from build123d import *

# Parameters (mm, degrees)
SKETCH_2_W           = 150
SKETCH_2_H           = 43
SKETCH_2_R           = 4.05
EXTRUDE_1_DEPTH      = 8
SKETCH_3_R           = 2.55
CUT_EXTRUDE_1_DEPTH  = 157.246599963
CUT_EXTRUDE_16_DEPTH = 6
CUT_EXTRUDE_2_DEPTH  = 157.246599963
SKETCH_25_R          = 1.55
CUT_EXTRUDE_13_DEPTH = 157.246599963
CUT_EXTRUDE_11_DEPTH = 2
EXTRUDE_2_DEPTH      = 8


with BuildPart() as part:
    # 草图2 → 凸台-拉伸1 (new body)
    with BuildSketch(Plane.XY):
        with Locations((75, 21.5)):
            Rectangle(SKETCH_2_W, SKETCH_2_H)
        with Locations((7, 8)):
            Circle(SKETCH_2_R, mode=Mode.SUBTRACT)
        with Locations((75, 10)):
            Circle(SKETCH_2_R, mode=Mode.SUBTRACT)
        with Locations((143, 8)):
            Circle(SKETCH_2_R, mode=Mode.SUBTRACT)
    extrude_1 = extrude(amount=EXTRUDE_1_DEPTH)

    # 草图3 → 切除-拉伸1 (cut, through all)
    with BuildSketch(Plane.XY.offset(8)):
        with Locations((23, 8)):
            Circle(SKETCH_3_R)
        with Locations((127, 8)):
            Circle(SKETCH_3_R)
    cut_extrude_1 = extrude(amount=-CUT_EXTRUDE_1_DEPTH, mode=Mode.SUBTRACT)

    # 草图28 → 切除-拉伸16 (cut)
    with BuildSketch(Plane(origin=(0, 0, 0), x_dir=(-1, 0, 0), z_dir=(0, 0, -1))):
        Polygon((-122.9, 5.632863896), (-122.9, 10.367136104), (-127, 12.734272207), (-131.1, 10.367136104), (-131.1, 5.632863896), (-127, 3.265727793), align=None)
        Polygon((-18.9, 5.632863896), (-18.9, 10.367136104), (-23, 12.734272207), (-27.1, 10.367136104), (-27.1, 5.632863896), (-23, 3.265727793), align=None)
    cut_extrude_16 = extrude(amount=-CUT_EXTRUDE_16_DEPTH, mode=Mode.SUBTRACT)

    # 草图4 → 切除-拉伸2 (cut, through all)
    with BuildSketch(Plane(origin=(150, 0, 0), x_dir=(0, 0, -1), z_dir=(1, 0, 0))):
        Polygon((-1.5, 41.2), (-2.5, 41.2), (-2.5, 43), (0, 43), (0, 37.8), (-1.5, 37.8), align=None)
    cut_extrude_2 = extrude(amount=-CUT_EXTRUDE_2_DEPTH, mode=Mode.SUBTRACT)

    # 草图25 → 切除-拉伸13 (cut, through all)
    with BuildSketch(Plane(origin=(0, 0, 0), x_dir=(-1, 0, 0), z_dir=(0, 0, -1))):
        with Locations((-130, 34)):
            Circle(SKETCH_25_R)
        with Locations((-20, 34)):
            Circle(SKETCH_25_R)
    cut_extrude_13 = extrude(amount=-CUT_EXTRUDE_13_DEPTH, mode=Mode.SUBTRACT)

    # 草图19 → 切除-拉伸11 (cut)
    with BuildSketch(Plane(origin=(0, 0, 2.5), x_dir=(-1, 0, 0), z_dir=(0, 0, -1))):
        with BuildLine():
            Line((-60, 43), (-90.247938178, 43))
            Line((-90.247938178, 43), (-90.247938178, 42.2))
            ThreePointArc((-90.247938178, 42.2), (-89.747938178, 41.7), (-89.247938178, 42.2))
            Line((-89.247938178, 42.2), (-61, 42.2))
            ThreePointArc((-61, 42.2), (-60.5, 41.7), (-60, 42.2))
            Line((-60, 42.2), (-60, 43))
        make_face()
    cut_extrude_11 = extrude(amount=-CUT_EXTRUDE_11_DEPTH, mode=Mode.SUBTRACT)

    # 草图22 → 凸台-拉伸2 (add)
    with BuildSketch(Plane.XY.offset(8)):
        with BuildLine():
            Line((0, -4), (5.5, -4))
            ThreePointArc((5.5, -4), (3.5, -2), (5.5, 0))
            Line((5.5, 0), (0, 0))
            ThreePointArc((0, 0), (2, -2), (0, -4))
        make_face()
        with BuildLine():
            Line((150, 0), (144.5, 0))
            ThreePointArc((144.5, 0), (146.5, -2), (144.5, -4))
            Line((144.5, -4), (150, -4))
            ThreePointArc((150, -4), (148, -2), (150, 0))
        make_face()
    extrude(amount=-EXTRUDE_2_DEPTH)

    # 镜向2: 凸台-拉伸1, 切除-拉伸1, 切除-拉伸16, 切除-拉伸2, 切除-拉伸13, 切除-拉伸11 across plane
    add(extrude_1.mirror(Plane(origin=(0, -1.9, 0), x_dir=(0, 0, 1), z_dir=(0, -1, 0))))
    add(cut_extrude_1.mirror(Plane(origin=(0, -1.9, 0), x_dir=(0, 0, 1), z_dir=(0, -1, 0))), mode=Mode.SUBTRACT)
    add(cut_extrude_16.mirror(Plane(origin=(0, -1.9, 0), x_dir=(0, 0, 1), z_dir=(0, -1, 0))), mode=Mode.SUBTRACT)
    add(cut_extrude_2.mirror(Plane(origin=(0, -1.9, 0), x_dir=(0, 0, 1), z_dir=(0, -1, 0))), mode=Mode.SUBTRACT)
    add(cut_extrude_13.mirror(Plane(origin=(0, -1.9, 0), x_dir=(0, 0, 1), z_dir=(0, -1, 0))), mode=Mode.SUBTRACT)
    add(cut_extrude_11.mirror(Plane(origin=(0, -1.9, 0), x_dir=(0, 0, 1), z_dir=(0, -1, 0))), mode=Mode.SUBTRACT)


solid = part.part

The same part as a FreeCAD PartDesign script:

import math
import FreeCAD as App
import Part
import Sketcher
from FreeCAD import Vector
Q = App.Units.Quantity


def add_polygon(sketch, points):
    """Adds a closed chain of lines whose ends are joined by coincident constraints."""
    first, n = sketch.GeometryCount, len(points)
    for a, b in zip(points, points[1:] + points[:1]):
        sketch.addGeometry(Part.LineSegment(App.Vector(*a, 0), App.Vector(*b, 0)), False)
    for i in range(n):
        sketch.addConstraint(Sketcher.Constraint("Coincident", first + i, 2, first + (i + 1) % n, 1))

doc = App.newDocument("Part")
body = doc.addObject("PartDesign::Body", "Body")

# Sketch on XY plane
sketch1 = body.newObject("Sketcher::SketchObject", "Sketch")
sketch1.AttachmentSupport = (doc.getObject("XY_Plane"), [""])
sketch1.MapMode = "FlatFace"
add_polygon(sketch1, [(0, 43), (0, 0), (150, 0), (150, 43)])  # lines 0-3
sketch1.addGeometry(Part.Circle(Vector(7, 8, 0), Vector(0, 0, 1), 4), False)  # 4
sketch1.addGeometry(Part.Circle(Vector(143, 8, 0), Vector(0, 0, 1), 4), False)  # 5
sketch1.addGeometry(Part.Circle(Vector(75, 10, 0), Vector(0, 0, 1), 4), False)  # 6
sketch1.addConstraint([
    Sketcher.Constraint("Vertical", 0),
    Sketcher.Constraint("Horizontal", 1),
    Sketcher.Constraint("Vertical", 2),
    Sketcher.Constraint("Horizontal", 3),
    Sketcher.Constraint("Coincident", 0, 2, -1, 1),
    Sketcher.Constraint("Equal", 4, 5),
    Sketcher.Constraint("Equal", 5, 6),
    Sketcher.Constraint("Horizontal", 4, 3, 5, 3),
    Sketcher.Constraint("Diameter", 4, Q("8.1 mm")),
    Sketcher.Constraint("DistanceX", 1, 1, 1, 2, Q("150 mm")),
    Sketcher.Constraint("DistanceY", 0, 2, 0, 1, Q("43 mm")),
    Sketcher.Constraint("DistanceX", -1, 1, 4, 3, Q("7 mm")),
    Sketcher.Constraint("DistanceY", -1, 1, 4, 3, Q("8 mm")),
    Sketcher.Constraint("DistanceX", -1, 1, 5, 3, Q("143 mm")),
    Sketcher.Constraint("DistanceX", -1, 1, 6, 3, Q("75 mm")),
    Sketcher.Constraint("DistanceY", -1, 1, 6, 3, Q("10 mm")),
])
pad1 = body.newObject("PartDesign::Pad", "Pad")
pad1.Profile = sketch1
pad1.Length = 8

# Sketch on XY plane
sketch2 = body.newObject("Sketcher::SketchObject", "Sketch001")
sketch2.AttachmentSupport = (doc.getObject("XY_Plane"), [""])
sketch2.MapMode = "FlatFace"
sketch2.AttachmentOffset = App.Placement(Vector(0, 0, 8), App.Rotation())
sketch2.addGeometry([
    Part.Circle(Vector(23, 8, 0), Vector(0, 0, 1), 2.5),
    Part.Circle(Vector(127, 8, 0), Vector(0, 0, 1), 2.5),
], False)
sketch2.addConstraint([
    Sketcher.Constraint("Equal", 0, 1),
    Sketcher.Constraint("Horizontal", 0, 3, 1, 3),
    Sketcher.Constraint("Diameter", 0, Q("5.1 mm")),
    Sketcher.Constraint("DistanceX", -1, 1, 0, 3, Q("23 mm")),
    Sketcher.Constraint("DistanceY", -1, 1, 0, 3, Q("8 mm")),
    Sketcher.Constraint("DistanceX", -1, 1, 1, 3, Q("127 mm")),
])
pocket1 = body.newObject("PartDesign::Pocket", "Pocket")
pocket1.Profile = sketch2
pocket1.Type = "ThroughAll"

# Sketch on XY plane
sketch3 = body.newObject("Sketcher::SketchObject", "Sketch002")
sketch3.AttachmentSupport = (doc.getObject("XY_Plane"), [""])
sketch3.MapMode = "FlatFace"
add_polygon(sketch3, [(122.9, 5.6), (122.9, 10.4), (127, 12.7), (131.1, 10.4), (131.1, 5.6), (127, 3.3)])  # lines 0-5
add_polygon(sketch3, [(18.9, 5.6), (18.9, 10.4), (23, 12.7), (27.1, 10.4), (27.1, 5.6), (23, 3.3)])  # lines 6-11
sketch3.addConstraint([
    Sketcher.Constraint("Vertical", 0),
    Sketcher.Constraint("Vertical", 3),
    Sketcher.Constraint("Vertical", 6),
    Sketcher.Constraint("Vertical", 9),
    Sketcher.Constraint("Parallel", 1, 4),
    Sketcher.Constraint("Parallel", 2, 5),
    Sketcher.Constraint("Parallel", 4, 7),
    Sketcher.Constraint("Parallel", 5, 8),
    Sketcher.Constraint("Parallel", 7, 10),
    Sketcher.Constraint("Parallel", 8, 11),
    Sketcher.Constraint("Horizontal", 0, 2, 2, 2),
    Sketcher.Constraint("Horizontal", 3, 2, 5, 2),
    Sketcher.Constraint("Horizontal", 2, 2, 6, 2),
    Sketcher.Constraint("Horizontal", 1, 2, 7, 2),
    Sketcher.Constraint("Horizontal", 6, 2, 8, 2),
    Sketcher.Constraint("Horizontal", 5, 2, 9, 2),
    Sketcher.Constraint("Horizontal", 4, 2, 10, 2),
    Sketcher.Constraint("Vertical", 1, 2, 4, 2),
    Sketcher.Constraint("Angle", 1, Q("30 deg")),
    Sketcher.Constraint("DistanceX", -1, 1, 1, 2, Q("127 mm")),
    Sketcher.Constraint("DistanceX", -1, 1, 7, 2, Q("23 mm")),
    Sketcher.Constraint("DistanceX", -1, 1, 0, 2, Q("122.9 mm")),
    Sketcher.Constraint("DistanceY", 0, 1, 0, 2, Q("4.734272 mm")),
    Sketcher.Constraint("DistanceY", -1, 1, 0, 2, Q("10.367136 mm")),
])
pocket2 = body.newObject("PartDesign::Pocket", "Pocket001")
pocket2.Profile = sketch3
pocket2.Length = 6
pocket2.Reversed = True

# Sketch on YZ plane
sketch4 = body.newObject("Sketcher::SketchObject", "Sketch003")
sketch4.AttachmentSupport = (doc.getObject("YZ_Plane"), [""])
sketch4.MapMode = "FlatFace"
sketch4.AttachmentOffset = App.Placement(Vector(0, 0, 150), App.Rotation())
add_polygon(sketch4, [(41.2, 2.5), (41.2, 1.5), (37.8, 1.5), (37.8, 0), (43, 0), (43, 2.5)])  # lines 0-5
sketch4.addConstraint([
    Sketcher.Constraint("Vertical", 0),
    Sketcher.Constraint("Horizontal", 1),
    Sketcher.Constraint("Vertical", 2),
    Sketcher.Constraint("Horizontal", 3),
    Sketcher.Constraint("Vertical", 4),
    Sketcher.Constraint("Horizontal", 5),
    Sketcher.Constraint("PointOnObject", 2, 2, -1),
    Sketcher.Constraint("DistanceY", 0, 2, 0, 1, Q("1 mm")),
    Sketcher.Constraint("DistanceX", 1, 2, 1, 1, Q("3.4 mm")),
    Sketcher.Constraint("DistanceX", 3, 1, 3, 2, Q("5.2 mm")),
    Sketcher.Constraint("DistanceY", 2, 2, 2, 1, Q("1.5 mm")),
    Sketcher.Constraint("DistanceX", -1, 1, 3, 2, Q("43 mm")),
])
pocket3 = body.newObject("PartDesign::Pocket", "Pocket002")
pocket3.Profile = sketch4
pocket3.Type = "ThroughAll"

# Sketch on XY plane
sketch5 = body.newObject("Sketcher::SketchObject", "Sketch004")
sketch5.AttachmentSupport = (doc.getObject("XY_Plane"), [""])
sketch5.MapMode = "FlatFace"
sketch5.addGeometry([
    Part.Circle(Vector(130, 34, 0), Vector(0, 0, 1), 1.6),
    Part.Circle(Vector(20, 34, 0), Vector(0, 0, 1), 1.6),
], False)
sketch5.addConstraint([
    Sketcher.Constraint("Equal", 0, 1),
    Sketcher.Constraint("Horizontal", 0, 3, 1, 3),
    Sketcher.Constraint("Diameter", 0, Q("3.1 mm")),
    Sketcher.Constraint("DistanceX", -1, 1, 0, 3, Q("130 mm")),
    Sketcher.Constraint("DistanceY", -1, 1, 0, 3, Q("34 mm")),
    Sketcher.Constraint("DistanceX", -1, 1, 1, 3, Q("20 mm")),
])
pocket4 = body.newObject("PartDesign::Pocket", "Pocket003")
pocket4.Profile = sketch5
pocket4.Type = "ThroughAll"
pocket4.Reversed = True

# Sketch on XY plane
sketch6 = body.newObject("Sketcher::SketchObject", "Sketch005")
sketch6.AttachmentSupport = (doc.getObject("XY_Plane"), [""])
sketch6.MapMode = "FlatFace"
sketch6.AttachmentOffset = App.Placement(Vector(0, 0, 2.5), App.Rotation())
sketch6.addGeometry([
    Part.LineSegment(Vector(60, 43, 0), Vector(90.2, 43, 0)),  # 0
    Part.LineSegment(Vector(90.2, 43, 0), Vector(90.2, 42.2, 0)),  # 1
    Part.ArcOfCircle(Part.Circle(Vector(89.7, 42.2, 0), Vector(0, 0, 1), 0.5), math.radians(180), math.radians(360)),  # 2
    Part.LineSegment(Vector(89.2, 42.2, 0), Vector(61, 42.2, 0)),  # 3
    Part.ArcOfCircle(Part.Circle(Vector(60.5, 42.2, 0), Vector(0, 0, 1), 0.5), math.radians(180), math.radians(360)),  # 4
    Part.LineSegment(Vector(60, 42.2, 0), Vector(60, 43, 0)),  # 5
], False)
sketch6.addConstraint([
    Sketcher.Constraint("Coincident", 0, 2, 1, 1),
    Sketcher.Constraint("Tangent", 1, 2, 2, 2),
    Sketcher.Constraint("Coincident", 2, 1, 3, 1),
    Sketcher.Constraint("Coincident", 3, 2, 4, 2),
    Sketcher.Constraint("Tangent", 4, 1, 5, 1),
    Sketcher.Constraint("Coincident", 5, 2, 0, 1),
    Sketcher.Constraint("Horizontal", 0),
    Sketcher.Constraint("Vertical", 1),
    Sketcher.Constraint("Horizontal", 3),
    Sketcher.Constraint("Vertical", 5),
    Sketcher.Constraint("Equal", 2, 4),
    Sketcher.Constraint("Horizontal", 2, 3, 4, 3),
    Sketcher.Constraint("Horizontal", 1, 2, 2, 1),
    Sketcher.Constraint("Radius", 2, Q("0.5 mm")),
    Sketcher.Constraint("DistanceY", 1, 2, 1, 1, Q("0.8 mm")),
    Sketcher.Constraint("DistanceY", -1, 1, 0, 2, Q("43 mm")),
    Sketcher.Constraint("DistanceX", -1, 1, 3, 2, Q("61 mm")),
    Sketcher.Constraint("DistanceX", 0, 1, 0, 2, Q("30.247938 mm")),
])
pocket5 = body.newObject("PartDesign::Pocket", "Pocket004")
pocket5.Profile = sketch6
pocket5.Length = 2
pocket5.Reversed = True

# Sketch on XY plane
sketch7 = body.newObject("Sketcher::SketchObject", "Sketch006")
sketch7.AttachmentSupport = (doc.getObject("XY_Plane"), [""])
sketch7.MapMode = "FlatFace"
sketch7.AttachmentOffset = App.Placement(Vector(0, 0, 8), App.Rotation())
sketch7.addGeometry([
    Part.LineSegment(Vector(0, -4, 0), Vector(5.5, -4, 0)),  # 0
    Part.ArcOfCircle(Part.Circle(Vector(5.5, -2, 0), Vector(0, 0, 1), 2), math.radians(90), math.radians(270)),  # 1
    Part.LineSegment(Vector(5.5, 0, 0), Vector(0, 0, 0)),  # 2
    Part.ArcOfCircle(Part.Circle(Vector(0, -2, 0), Vector(0, 0, 1), 2), math.radians(-90), math.radians(90)),  # 3
    Part.LineSegment(Vector(150, 0, 0), Vector(144.5, 0, 0)),  # 4
    Part.ArcOfCircle(Part.Circle(Vector(144.5, -2, 0), Vector(0, 0, 1), 2), math.radians(-90), math.radians(90)),  # 5
    Part.LineSegment(Vector(144.5, -4, 0), Vector(150, -4, 0)),  # 6
    Part.ArcOfCircle(Part.Circle(Vector(150, -2, 0), Vector(0, 0, 1), 2), math.radians(90), math.radians(270)),  # 7
], False)
sketch7.addConstraint([
    Sketcher.Constraint("Tangent", 0, 2, 1, 2),
    Sketcher.Constraint("Tangent", 1, 1, 2, 1),
    Sketcher.Constraint("Tangent", 2, 2, 3, 2),
    Sketcher.Constraint("Tangent", 3, 1, 0, 1),
    Sketcher.Constraint("Tangent", 4, 2, 5, 2),
    Sketcher.Constraint("Tangent", 5, 1, 6, 1),
    Sketcher.Constraint("Tangent", 6, 2, 7, 2),
    Sketcher.Constraint("Tangent", 7, 1, 4, 1),
    Sketcher.Constraint("Horizontal", 0),
    Sketcher.Constraint("Horizontal", 2),
    Sketcher.Constraint("Horizontal", 4),
    Sketcher.Constraint("Horizontal", 6),
    Sketcher.Constraint("Coincident", 2, 2, -1, 1),
    Sketcher.Constraint("Equal", 3, 5),
    Sketcher.Constraint("PointOnObject", 4, 2, -1),
    Sketcher.Constraint("Equal", 2, 4),
    Sketcher.Constraint("Radius", 1, Q("2 mm")),
    Sketcher.Constraint("DistanceX", 0, 1, 0, 2, Q("5.5 mm")),
    Sketcher.Constraint("DistanceX", -1, 1, 7, 3, Q("150 mm")),
])
pad2 = body.newObject("PartDesign::Pad", "Pad001")
pad2.Profile = sketch7
pad2.Length = 8
pad2.Reversed = True
doc.recompute()

datumplane = body.newObject("PartDesign::Plane", "DatumPlane")
datumplane.AttachmentSupport = (doc.getObject("XZ_Plane"), [""])
datumplane.MapMode = "FlatFace"
datumplane.AttachmentOffset = App.Placement(Vector(0, 0, 1.9), App.Rotation())
mirrored = body.newObject("PartDesign::Mirrored", "Mirrored")
mirrored.Originals = [pad1, pocket1, pocket2, pocket3, pocket4, pocket5]
mirrored.MirrorPlane = (datumplane, [""])
body.Tip = mirrored

doc.recompute()
